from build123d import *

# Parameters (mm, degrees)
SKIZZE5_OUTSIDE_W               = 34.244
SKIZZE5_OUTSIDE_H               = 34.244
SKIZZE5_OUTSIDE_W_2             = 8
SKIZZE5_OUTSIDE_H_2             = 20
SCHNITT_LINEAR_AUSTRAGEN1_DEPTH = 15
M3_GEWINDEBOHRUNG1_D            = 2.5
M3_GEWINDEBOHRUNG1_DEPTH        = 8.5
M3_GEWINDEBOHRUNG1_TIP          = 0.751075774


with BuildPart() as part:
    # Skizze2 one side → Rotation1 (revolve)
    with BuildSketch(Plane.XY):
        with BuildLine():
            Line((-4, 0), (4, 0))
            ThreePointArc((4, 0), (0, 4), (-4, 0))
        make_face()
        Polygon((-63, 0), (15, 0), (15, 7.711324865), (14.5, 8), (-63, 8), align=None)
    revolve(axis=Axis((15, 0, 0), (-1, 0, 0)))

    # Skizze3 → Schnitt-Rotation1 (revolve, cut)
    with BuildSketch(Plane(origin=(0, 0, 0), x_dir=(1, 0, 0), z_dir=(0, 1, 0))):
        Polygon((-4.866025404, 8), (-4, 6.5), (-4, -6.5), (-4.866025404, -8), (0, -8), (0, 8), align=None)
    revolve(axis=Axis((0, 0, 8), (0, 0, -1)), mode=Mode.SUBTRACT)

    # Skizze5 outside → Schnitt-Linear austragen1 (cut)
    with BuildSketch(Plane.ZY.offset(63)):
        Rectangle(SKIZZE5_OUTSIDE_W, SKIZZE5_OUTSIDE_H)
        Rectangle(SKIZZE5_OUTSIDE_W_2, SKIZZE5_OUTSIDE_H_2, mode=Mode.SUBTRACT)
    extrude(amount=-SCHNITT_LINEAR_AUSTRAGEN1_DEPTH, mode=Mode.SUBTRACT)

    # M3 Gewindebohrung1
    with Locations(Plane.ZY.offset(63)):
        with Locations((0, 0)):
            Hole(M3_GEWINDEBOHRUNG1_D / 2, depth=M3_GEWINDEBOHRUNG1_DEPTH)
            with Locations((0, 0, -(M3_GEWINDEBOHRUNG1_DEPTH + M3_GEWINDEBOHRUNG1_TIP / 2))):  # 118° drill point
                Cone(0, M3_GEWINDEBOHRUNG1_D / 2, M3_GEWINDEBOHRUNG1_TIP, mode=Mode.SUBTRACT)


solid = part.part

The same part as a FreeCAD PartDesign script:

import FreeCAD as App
import Part
import Sketcher

V = App.Vector
Q = App.Units.Quantity


def add_polygon(sketch, points):
    """Adds a closed chain of lines whose ends are joined by coincident constraints."""
    first, n = sketch.GeometryCount, len(points)
    for a, b in zip(points, points[1:] + points[:1]):
        sketch.addGeometry(Part.LineSegment(App.Vector(*a, 0), App.Vector(*b, 0)), False)
    for i in range(n):
        sketch.addConstraint(Sketcher.Constraint("Coincident", first + i, 2, first + (i + 1) % n, 1))

doc = App.newDocument("Part")
params = doc.addObject("Spreadsheet::Sheet", "Params")
for row, (alias, value) in enumerate([
    ("sketch1_width", "78 mm"),
    ("sketch1_height", "8 mm"),
    ("sketch1_width2", "77.5 mm"),
    ("revolution_angle", "360 deg"),
    ("sketch2_height", "13 mm"),
    ("sketch2_height2", "16 mm"),
    ("groove_angle", "360 deg"),
    ("sketch3_width", "20 mm"),
    ("sketch3_height", "8 mm"),
    ("pocket1_length", "15 mm"),
    ("sketch4_diameter", "2.5 mm"),
    ("hole_diameter", "2.5 mm"),
    ("hole_depth", "8.5 mm"),
], start=1):
    params.set(f"A{row}", alias)
    params.set(f"B{row}", "=" + value)
    params.setAlias(f"B{row}", alias)

body = doc.addObject("PartDesign::Body", "Body")

sketch1 = body.newObject("Sketcher::SketchObject", "Sketch")
sketch1.AttachmentSupport = (doc.getObject("XY_Plane"), [""])
sketch1.MapMode = "FlatFace"
add_polygon(sketch1, [(15, 0), (15, 7.711325), (14.5, 8), (-63, 8), (-63, 0)])
sketch1.addConstraint([
    Sketcher.Constraint("Vertical", 0),
    Sketcher.Constraint("Horizontal", 2),
    Sketcher.Constraint("Vertical", 3),
    Sketcher.Constraint("Horizontal", 4),
    Sketcher.Constraint("PointOnObject", 3, 2, -1),
    Sketcher.Constraint("DistanceX", 4, 1, 4, 2, 78.0),
    Sketcher.Constraint("DistanceY", 3, 2, 3, 1, 8.0),
    Sketcher.Constraint("Angle", 1, Q("150 deg")),
    Sketcher.Constraint("DistanceX", 2, 2, 2, 1, 77.5),
    Sketcher.Constraint("DistanceX", -1, 1, 0, 2, 15.0),
])
sketch1.setExpression("Constraints[10]", "Params.sketch1_width")
sketch1.setExpression("Constraints[11]", "Params.sketch1_height")
sketch1.setExpression("Constraints[13]", "Params.sketch1_width2")
revolution = body.newObject("PartDesign::Revolution", "Revolution")
revolution.Profile = sketch1
revolution.ReferenceAxis = (sketch1, ["H_Axis"])
revolution.setExpression("Angle", "Params.revolution_angle")

sketch2 = body.newObject("Sketcher::SketchObject", "Sketch001")
sketch2.AttachmentSupport = (doc.getObject("XZ_Plane"), [""])
sketch2.MapMode = "FlatFace"
add_polygon(sketch2, [(-4.866025, -8), (-4, -6.5), (-4, 6.5), (-4.866025, 8), (0, 8), (0, -8)])
sketch2.addConstraint([
    Sketcher.Constraint("Vertical", 1),
    Sketcher.Constraint("Horizontal", 3),
    Sketcher.Constraint("Vertical", 4),
    Sketcher.Constraint("Horizontal", 5),
    Sketcher.Constraint("Symmetric", 3, 2, 4, 2, -1, 1),
    Sketcher.Constraint("Vertical", 2, 2, 5, 2),
    Sketcher.Constraint("Equal", 0, 2),
    Sketcher.Constraint("DistanceY", 1, 1, 1, 2, 13.0),
    Sketcher.Constraint("DistanceY", 4, 2, 4, 1, 16.0),
    Sketcher.Constraint("Angle", 0, Q("60 deg")),
    Sketcher.Constraint("DistanceX", 0, 2, -1, 1, 4.0),
])
sketch2.setExpression("Constraints[13]", "Params.sketch2_height")
sketch2.setExpression("Constraints[14]", "Params.sketch2_height2")
groove = body.newObject("PartDesign::Groove", "Groove")
groove.Profile = sketch2
groove.ReferenceAxis = (sketch2, ["V_Axis"])
groove.setExpression("Angle", "Params.groove_angle")

sketch3 = body.newObject("Sketcher::SketchObject", "Sketch002")
sketch3.AttachmentSupport = (doc.getObject("YZ_Plane"), [""])
sketch3.MapMode = "FlatFace"
sketch3.AttachmentOffset = App.Placement(V(0, 0, -63), App.Rotation())
add_polygon(sketch3, [(17.122, -17.122), (-17.122, -17.122), (-17.122, 17.122), (17.122, 17.122)])
add_polygon(sketch3, [(-10, 4), (-10, -4), (10, -4), (10, 4)])
sketch3.addConstraint([
    Sketcher.Constraint("Horizontal", 0),
    Sketcher.Constraint("Vertical", 1),
    Sketcher.Constraint("Horizontal", 2),
    Sketcher.Constraint("Vertical", 3),
    Sketcher.Constraint("Vertical", 4),
    Sketcher.Constraint("Horizontal", 5),
    Sketcher.Constraint("Vertical", 6),
    Sketcher.Constraint("Horizontal", 7),
    Sketcher.Constraint("Symmetric", 0, 2, 2, 2, -1, 1),
    Sketcher.Constraint("Symmetric", 4, 2, 6, 2, -1, 1),
    Sketcher.Constraint("Equal", 2, 1),
    Sketcher.Constraint("DistanceX", 5, 1, 5, 2, 20.0),
    Sketcher.Constraint("DistanceY", 4, 2, 4, 1, 8.0),
    Sketcher.Constraint("DistanceX", 0, 2, 0, 1, 34.244),
])
sketch3.setExpression("Constraints[19]", "Params.sketch3_width")
sketch3.setExpression("Constraints[20]", "Params.sketch3_height")
pocket1 = body.newObject("PartDesign::Pocket", "Pocket")
pocket1.Profile = sketch3
pocket1.setExpression("Length", "Params.pocket1_length")
pocket1.Reversed = True

sketch4 = body.newObject("Sketcher::SketchObject", "Sketch003")
sketch4.AttachmentSupport = (doc.getObject("YZ_Plane"), [""])
sketch4.MapMode = "FlatFace"
sketch4.AttachmentOffset = App.Placement(V(0, 0, -63), App.Rotation())
sketch4.addGeometry(Part.Circle(V(0, 0, 0), V(0, 0, 1), 1.25), False)
sketch4.addConstraint([
    Sketcher.Constraint("Coincident", 0, 3, -1, 1),
    Sketcher.Constraint("Diameter", 0, 2.5),
])
sketch4.setExpression("Constraints[1]", "Params.sketch4_diameter")
doc.recompute()
hole = body.newObject("PartDesign::Hole", "Hole")
hole.Profile = sketch4
hole.ThreadType = "None"
hole.setExpression("Diameter", "Params.hole_diameter")
hole.DepthType = "Dimension"
hole.setExpression("Depth", "Params.hole_depth")
hole.DrillPoint = "Angled"
hole.DrillPointAngle = 118
hole.Reversed = True

doc.recompute()
